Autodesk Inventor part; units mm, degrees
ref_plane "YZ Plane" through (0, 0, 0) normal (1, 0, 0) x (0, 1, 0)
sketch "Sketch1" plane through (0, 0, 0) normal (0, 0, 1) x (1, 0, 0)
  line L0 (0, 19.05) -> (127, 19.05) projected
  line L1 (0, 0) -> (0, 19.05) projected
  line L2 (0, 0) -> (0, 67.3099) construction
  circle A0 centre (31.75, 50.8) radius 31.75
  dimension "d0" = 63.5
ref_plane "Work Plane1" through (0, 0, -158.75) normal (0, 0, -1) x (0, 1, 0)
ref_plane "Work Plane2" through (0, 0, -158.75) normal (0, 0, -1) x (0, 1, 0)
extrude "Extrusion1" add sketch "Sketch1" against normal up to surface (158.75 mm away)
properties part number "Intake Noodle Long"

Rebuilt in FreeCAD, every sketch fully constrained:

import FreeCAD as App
import Part
import Sketcher
Q = App.Units.Quantity

doc = App.newDocument("Part")
body = doc.addObject("PartDesign::Body", "Body")

sketch1 = body.newObject("Sketcher::SketchObject", "Sketch")
sketch1.AttachmentSupport = (doc.getObject("XY_Plane"), [""])
sketch1.MapMode = "FlatFace"
sketch1.addGeometry(Part.Circle(App.Vector(32, 51, 0), App.Vector(0, 0, 1), 32), False)
sketch1.addConstraint([
    Sketcher.Constraint("Diameter", 0, Q("2.5 in")),
    Sketcher.Constraint("DistanceY", -1, 1, 0, 3, Q("2 in")),
    Sketcher.Constraint("DistanceX", -1, 1, 0, 3, Q("1.25 in")),
])
pad1 = body.newObject("PartDesign::Pad", "Pad")
pad1.Profile = sketch1
pad1.Length = Q("6.25 in")
pad1.Reversed = True

doc.recompute()
